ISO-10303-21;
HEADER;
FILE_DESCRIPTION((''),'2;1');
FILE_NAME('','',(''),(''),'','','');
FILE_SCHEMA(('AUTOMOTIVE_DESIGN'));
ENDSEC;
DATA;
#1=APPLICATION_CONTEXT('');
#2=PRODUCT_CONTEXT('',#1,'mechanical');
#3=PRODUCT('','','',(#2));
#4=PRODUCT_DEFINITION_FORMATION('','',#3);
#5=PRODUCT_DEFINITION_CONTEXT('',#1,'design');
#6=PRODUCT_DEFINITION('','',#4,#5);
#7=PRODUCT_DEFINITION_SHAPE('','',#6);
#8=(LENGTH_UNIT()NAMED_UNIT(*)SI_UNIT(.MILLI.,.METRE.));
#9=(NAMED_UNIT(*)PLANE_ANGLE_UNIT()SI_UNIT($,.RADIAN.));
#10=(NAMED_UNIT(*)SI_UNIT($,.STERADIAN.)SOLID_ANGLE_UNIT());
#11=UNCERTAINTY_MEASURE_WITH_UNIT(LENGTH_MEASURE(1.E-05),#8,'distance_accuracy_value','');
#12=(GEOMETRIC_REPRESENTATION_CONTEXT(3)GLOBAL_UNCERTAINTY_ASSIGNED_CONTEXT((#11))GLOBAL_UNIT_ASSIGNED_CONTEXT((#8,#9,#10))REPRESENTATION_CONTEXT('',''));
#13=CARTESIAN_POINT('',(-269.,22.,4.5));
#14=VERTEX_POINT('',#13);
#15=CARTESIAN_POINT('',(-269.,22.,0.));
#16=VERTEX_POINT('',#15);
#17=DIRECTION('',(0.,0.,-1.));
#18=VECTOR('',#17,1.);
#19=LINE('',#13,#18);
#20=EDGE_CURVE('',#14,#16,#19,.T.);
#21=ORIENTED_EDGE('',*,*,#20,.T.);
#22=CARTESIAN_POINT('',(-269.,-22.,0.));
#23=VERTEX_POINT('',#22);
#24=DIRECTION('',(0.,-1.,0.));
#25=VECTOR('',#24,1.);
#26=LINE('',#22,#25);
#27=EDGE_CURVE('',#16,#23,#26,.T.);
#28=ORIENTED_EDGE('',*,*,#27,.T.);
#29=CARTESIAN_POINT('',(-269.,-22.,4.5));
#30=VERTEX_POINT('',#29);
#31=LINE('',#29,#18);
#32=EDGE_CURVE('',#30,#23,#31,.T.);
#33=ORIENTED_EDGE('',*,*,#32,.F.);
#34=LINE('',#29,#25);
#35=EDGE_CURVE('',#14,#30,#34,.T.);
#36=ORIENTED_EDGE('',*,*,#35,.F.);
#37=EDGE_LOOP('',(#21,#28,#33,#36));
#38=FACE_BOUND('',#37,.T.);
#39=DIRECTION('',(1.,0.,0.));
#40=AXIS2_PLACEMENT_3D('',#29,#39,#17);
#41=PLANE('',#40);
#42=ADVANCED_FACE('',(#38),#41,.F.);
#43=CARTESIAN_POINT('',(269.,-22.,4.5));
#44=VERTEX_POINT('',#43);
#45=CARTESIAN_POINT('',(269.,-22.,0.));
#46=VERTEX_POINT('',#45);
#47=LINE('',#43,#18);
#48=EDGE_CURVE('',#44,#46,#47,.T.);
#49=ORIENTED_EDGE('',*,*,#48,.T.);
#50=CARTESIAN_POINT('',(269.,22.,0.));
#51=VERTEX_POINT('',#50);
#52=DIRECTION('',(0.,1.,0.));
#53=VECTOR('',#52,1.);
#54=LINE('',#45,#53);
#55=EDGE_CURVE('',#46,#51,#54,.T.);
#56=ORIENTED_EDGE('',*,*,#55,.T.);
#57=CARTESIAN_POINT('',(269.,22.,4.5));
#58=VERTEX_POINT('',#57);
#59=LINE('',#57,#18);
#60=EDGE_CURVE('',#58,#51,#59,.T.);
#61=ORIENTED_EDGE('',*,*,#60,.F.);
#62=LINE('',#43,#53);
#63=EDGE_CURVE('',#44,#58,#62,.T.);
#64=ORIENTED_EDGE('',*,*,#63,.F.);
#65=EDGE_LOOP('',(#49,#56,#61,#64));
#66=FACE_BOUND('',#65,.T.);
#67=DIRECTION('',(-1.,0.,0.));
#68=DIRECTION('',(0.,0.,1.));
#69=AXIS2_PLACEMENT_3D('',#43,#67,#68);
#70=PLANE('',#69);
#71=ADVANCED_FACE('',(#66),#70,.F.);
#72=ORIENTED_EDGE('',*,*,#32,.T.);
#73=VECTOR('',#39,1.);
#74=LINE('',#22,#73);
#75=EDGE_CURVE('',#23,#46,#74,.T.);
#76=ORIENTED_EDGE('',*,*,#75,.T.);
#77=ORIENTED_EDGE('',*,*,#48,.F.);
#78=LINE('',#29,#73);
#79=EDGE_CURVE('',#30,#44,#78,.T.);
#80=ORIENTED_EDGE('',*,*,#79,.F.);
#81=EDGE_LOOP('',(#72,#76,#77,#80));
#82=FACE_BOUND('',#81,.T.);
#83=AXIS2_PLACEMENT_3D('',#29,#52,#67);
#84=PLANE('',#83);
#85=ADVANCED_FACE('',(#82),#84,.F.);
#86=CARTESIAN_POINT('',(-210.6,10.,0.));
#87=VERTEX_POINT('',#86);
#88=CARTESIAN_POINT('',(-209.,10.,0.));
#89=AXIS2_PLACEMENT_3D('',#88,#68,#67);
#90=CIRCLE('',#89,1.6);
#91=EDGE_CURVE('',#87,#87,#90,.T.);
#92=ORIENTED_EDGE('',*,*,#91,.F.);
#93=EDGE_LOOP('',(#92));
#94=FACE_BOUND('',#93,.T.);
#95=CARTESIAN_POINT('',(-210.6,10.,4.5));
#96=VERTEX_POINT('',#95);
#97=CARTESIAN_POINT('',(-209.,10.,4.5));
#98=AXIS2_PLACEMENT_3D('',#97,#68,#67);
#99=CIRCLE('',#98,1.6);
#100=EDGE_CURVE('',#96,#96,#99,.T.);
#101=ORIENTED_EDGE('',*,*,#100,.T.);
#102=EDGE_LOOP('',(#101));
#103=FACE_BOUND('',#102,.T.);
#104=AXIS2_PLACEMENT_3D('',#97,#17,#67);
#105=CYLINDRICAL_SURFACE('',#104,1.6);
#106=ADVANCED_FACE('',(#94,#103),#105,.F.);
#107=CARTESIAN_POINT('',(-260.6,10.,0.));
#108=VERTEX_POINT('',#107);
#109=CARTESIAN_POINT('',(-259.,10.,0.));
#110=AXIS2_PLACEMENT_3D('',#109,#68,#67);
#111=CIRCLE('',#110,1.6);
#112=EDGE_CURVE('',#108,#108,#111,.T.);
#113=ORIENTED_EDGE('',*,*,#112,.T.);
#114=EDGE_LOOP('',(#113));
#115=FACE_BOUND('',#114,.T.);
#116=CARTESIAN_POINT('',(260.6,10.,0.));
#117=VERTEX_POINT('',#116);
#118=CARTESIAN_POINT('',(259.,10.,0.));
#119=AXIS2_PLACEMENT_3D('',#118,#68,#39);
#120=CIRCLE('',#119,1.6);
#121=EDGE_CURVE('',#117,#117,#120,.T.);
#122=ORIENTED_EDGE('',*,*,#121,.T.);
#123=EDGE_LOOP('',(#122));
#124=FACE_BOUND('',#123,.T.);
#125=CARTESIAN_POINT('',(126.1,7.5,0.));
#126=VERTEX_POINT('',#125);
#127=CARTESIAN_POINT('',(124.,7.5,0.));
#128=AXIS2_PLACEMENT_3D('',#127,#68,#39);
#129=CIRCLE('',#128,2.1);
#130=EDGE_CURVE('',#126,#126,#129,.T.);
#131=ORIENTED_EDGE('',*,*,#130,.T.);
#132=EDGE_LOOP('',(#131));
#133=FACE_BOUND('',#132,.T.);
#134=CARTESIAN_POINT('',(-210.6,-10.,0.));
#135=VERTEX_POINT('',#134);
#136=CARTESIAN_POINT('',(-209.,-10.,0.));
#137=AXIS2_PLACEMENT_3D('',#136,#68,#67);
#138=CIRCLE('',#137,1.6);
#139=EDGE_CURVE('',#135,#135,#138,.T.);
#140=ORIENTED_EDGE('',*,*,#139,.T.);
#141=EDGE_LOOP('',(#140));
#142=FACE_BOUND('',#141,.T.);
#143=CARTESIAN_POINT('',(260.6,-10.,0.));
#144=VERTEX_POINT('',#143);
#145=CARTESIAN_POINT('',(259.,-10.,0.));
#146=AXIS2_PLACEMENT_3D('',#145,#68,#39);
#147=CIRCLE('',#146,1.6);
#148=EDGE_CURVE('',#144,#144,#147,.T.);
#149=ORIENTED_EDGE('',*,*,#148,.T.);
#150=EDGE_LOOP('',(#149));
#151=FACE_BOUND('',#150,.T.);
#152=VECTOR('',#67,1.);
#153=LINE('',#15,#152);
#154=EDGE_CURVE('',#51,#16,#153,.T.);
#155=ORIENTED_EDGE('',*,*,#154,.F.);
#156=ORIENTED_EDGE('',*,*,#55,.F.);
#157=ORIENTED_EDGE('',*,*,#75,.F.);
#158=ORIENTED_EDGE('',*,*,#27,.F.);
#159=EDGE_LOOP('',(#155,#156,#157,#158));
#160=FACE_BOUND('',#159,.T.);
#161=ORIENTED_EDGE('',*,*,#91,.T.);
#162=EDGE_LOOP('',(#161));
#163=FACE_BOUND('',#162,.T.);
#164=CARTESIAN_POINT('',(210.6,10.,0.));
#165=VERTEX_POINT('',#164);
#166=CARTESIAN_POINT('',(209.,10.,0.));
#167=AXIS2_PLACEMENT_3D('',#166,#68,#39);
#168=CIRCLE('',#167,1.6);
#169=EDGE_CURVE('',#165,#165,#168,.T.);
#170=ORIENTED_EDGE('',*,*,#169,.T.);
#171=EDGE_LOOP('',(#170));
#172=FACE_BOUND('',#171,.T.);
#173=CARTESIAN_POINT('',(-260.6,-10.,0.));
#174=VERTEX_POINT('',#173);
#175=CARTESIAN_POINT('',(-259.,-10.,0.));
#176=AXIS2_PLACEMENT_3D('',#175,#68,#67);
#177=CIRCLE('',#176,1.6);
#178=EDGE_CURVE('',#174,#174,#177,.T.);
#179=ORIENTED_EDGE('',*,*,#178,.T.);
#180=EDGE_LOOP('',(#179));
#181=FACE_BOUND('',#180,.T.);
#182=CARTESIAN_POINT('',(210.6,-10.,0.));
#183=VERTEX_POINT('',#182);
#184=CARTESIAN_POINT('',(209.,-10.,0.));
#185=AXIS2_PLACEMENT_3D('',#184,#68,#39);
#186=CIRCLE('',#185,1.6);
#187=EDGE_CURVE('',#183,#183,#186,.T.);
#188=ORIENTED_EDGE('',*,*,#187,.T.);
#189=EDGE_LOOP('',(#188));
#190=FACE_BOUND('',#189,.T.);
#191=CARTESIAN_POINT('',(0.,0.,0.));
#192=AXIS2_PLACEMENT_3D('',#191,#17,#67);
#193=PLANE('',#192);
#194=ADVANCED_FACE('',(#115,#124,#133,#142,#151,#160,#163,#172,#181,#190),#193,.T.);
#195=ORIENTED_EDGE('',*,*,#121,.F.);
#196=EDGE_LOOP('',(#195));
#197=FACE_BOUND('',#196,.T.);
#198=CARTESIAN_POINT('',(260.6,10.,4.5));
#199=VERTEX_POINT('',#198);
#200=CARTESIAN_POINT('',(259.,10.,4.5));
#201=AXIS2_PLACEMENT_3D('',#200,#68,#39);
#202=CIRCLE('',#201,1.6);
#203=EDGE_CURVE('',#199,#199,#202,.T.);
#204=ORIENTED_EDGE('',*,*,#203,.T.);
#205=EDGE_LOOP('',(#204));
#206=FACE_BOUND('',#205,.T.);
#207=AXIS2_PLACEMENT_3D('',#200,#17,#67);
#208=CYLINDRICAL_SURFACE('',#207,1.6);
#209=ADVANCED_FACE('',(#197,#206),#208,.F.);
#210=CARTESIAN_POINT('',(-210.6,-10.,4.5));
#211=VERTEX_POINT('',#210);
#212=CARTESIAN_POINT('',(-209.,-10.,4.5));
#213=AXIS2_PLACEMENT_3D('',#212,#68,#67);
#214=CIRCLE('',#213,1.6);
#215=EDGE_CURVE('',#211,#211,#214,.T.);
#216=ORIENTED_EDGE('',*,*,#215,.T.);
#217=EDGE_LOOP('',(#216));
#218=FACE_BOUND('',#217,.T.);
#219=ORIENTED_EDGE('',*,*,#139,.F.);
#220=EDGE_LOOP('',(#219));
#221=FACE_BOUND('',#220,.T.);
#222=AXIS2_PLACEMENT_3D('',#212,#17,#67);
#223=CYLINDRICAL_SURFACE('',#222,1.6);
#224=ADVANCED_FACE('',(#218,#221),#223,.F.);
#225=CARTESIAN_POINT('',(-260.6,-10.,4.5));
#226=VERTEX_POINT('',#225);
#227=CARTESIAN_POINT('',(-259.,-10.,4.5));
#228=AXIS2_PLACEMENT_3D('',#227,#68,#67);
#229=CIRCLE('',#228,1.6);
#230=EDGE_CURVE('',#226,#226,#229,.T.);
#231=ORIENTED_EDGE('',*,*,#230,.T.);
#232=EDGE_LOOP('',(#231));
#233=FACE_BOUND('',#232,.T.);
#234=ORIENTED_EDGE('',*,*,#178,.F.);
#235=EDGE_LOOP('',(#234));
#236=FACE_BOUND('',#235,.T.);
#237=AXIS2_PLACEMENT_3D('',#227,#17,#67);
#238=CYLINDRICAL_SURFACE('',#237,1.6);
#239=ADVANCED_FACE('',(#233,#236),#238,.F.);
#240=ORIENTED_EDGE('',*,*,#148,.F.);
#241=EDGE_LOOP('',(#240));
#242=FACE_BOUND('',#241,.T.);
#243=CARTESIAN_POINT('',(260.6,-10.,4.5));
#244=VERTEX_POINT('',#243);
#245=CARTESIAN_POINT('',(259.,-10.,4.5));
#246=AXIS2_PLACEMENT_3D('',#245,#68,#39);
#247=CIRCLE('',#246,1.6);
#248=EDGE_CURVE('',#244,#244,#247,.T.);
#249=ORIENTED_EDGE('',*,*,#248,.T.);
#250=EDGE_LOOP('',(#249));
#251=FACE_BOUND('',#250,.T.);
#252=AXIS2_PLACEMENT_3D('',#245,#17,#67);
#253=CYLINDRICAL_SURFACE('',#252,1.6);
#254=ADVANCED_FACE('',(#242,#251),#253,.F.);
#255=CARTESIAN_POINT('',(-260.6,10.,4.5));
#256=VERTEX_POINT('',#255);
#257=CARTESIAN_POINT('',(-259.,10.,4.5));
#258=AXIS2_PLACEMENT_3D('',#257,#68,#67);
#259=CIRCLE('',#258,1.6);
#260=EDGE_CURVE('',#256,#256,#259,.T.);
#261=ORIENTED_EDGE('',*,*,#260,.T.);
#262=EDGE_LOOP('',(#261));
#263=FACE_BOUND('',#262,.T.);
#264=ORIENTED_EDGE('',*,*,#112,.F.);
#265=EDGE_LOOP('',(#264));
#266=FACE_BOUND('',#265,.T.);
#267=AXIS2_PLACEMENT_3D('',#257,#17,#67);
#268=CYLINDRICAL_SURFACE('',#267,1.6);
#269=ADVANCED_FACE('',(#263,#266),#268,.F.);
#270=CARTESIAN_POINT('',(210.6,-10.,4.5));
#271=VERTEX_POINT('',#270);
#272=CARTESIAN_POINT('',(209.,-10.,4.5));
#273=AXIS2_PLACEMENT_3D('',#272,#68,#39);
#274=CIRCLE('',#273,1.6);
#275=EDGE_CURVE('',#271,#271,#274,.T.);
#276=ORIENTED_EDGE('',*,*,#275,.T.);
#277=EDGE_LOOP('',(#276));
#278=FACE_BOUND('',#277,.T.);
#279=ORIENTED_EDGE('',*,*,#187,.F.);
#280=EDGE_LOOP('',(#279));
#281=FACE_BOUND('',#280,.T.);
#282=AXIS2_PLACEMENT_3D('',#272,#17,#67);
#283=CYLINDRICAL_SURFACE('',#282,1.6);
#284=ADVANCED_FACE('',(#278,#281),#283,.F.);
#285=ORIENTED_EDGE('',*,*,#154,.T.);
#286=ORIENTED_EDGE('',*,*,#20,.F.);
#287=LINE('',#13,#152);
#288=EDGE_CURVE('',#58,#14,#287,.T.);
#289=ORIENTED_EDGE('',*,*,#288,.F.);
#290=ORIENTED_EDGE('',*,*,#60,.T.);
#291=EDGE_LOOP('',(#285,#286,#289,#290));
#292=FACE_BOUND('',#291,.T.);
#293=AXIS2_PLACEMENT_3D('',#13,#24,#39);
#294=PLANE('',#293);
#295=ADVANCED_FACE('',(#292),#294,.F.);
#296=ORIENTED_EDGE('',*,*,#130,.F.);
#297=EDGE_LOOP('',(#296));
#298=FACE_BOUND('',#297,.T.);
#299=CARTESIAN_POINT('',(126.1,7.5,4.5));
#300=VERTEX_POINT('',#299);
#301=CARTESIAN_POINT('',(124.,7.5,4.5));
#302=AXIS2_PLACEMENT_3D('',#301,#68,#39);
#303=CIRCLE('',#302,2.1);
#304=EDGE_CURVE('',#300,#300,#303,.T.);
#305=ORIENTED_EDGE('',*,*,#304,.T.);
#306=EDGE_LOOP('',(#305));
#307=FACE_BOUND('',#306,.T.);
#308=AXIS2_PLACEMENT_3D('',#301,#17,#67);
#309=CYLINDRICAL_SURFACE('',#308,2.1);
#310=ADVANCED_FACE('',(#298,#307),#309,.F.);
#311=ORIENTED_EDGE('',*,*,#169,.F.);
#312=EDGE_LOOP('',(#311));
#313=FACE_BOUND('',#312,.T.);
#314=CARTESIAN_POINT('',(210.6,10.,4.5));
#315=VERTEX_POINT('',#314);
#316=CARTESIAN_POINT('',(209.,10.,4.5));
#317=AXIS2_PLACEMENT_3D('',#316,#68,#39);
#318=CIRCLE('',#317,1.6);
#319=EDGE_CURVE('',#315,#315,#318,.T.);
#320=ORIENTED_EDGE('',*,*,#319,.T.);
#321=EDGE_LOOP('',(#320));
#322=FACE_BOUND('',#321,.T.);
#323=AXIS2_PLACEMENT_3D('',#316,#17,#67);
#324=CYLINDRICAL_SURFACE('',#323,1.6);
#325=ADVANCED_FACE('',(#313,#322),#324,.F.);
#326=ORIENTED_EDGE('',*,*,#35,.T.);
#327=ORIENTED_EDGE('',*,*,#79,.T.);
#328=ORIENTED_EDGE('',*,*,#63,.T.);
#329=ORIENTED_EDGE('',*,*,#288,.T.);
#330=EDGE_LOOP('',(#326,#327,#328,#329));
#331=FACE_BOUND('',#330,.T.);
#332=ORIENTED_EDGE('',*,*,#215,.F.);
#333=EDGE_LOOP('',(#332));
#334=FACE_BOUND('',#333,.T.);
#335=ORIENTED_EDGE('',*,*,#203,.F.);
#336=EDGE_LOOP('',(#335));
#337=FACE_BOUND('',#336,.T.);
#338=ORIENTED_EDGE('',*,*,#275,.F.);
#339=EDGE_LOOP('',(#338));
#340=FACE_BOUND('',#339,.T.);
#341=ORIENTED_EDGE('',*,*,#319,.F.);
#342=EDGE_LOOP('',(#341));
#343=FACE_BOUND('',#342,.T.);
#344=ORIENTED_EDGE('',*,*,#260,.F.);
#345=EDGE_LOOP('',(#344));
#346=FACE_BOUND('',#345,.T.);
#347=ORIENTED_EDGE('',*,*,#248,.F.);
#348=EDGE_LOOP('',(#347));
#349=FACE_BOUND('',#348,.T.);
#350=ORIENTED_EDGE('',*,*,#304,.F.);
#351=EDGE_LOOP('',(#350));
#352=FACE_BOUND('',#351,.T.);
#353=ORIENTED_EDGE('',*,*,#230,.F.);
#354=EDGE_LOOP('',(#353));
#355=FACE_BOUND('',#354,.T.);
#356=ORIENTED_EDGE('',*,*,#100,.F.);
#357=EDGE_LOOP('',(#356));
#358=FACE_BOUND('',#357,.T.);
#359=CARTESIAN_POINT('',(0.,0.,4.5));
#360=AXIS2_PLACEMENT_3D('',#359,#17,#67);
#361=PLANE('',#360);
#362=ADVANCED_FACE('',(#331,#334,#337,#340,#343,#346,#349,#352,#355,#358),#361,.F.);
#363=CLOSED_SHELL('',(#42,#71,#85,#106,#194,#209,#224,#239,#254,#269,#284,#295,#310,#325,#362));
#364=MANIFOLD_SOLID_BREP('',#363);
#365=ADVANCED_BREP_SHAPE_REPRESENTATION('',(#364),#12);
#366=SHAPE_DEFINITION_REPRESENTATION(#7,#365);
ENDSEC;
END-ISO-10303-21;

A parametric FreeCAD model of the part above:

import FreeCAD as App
import Part
import Sketcher


def add_polygon(sketch, points):
    """Adds a closed chain of lines whose ends are joined by coincident constraints."""
    first, n = sketch.GeometryCount, len(points)
    for a, b in zip(points, points[1:] + points[:1]):
        sketch.addGeometry(Part.LineSegment(App.Vector(*a, 0), App.Vector(*b, 0)), False)
    for i in range(n):
        sketch.addConstraint(Sketcher.Constraint("Coincident", first + i, 2, first + (i + 1) % n, 1))

doc = App.newDocument("Part")
body = doc.addObject("PartDesign::Body", "Body")

# Sketch on XY plane
sketch1 = body.newObject("Sketcher::SketchObject", "Sketch")
sketch1.AttachmentSupport = (doc.getObject("XY_Plane"), [""])
sketch1.MapMode = "FlatFace"
add_polygon(sketch1, [(-269, 22), (-269, -22), (269, -22), (269, 22)])  # lines 0-3
sketch1.addGeometry(Part.Circle(App.Vector(-259, -10, 0), App.Vector(0, 0, 1), 1.6), False)  # 4
sketch1.addGeometry(Part.Circle(App.Vector(-209, -10, 0), App.Vector(0, 0, 1), 1.6), False)  # 5
sketch1.addGeometry(Part.Circle(App.Vector(209, -10, 0), App.Vector(0, 0, 1), 1.6), False)  # 6
sketch1.addGeometry(Part.Circle(App.Vector(259, -10, 0), App.Vector(0, 0, 1), 1.6), False)  # 7
sketch1.addGeometry(Part.Circle(App.Vector(-259, 10, 0), App.Vector(0, 0, 1), 1.6), False)  # 8
sketch1.addGeometry(Part.Circle(App.Vector(-209, 10, 0), App.Vector(0, 0, 1), 1.6), False)  # 9
sketch1.addGeometry(Part.Circle(App.Vector(124, 7.5, 0), App.Vector(0, 0, 1), 2.1), False)  # 10
sketch1.addGeometry(Part.Circle(App.Vector(209, 10, 0), App.Vector(0, 0, 1), 1.6), False)  # 11
sketch1.addGeometry(Part.Circle(App.Vector(259, 10, 0), App.Vector(0, 0, 1), 1.6), False)  # 12
sketch1.addConstraint(Sketcher.Constraint("Vertical", 0))
sketch1.addConstraint(Sketcher.Constraint("Horizontal", 1))
sketch1.addConstraint(Sketcher.Constraint("Vertical", 2))
sketch1.addConstraint(Sketcher.Constraint("Horizontal", 3))
sketch1.addConstraint(Sketcher.Constraint("Equal", 4, 5))
sketch1.addConstraint(Sketcher.Constraint("Equal", 5, 6))
sketch1.addConstraint(Sketcher.Constraint("Equal", 6, 7))
sketch1.addConstraint(Sketcher.Constraint("Equal", 7, 8))
sketch1.addConstraint(Sketcher.Constraint("Equal", 8, 9))
sketch1.addConstraint(Sketcher.Constraint("Equal", 9, 11))
sketch1.addConstraint(Sketcher.Constraint("Equal", 11, 12))
sketch1.addConstraint(Sketcher.Constraint("Symmetric", 7, 3, 8, 3, -1, 1))
sketch1.addConstraint(Sketcher.Constraint("Symmetric", 6, 3, 9, 3, -1, 1))
sketch1.addConstraint(Sketcher.Constraint("Symmetric", 5, 3, 11, 3, -1, 1))
sketch1.addConstraint(Sketcher.Constraint("Symmetric", 4, 3, 12, 3, -1, 1))
sketch1.addConstraint(Sketcher.Constraint("Symmetric", 0, 2, 2, 2, -1, 1))
sketch1.addConstraint(Sketcher.Constraint("Symmetric", 5, 3, 6, 3, -2))
sketch1.addConstraint(Sketcher.Constraint("Symmetric", 4, 3, 7, 3, -2))
sketch1.addConstraint(Sketcher.Constraint("Horizontal", 4, 3, 5, 3))
sketch1.addConstraint(Sketcher.Constraint("Diameter", 4, 3.2))
sketch1.addConstraint(Sketcher.Constraint("Diameter", 10, 4.2))
sketch1.addConstraint(Sketcher.Constraint("DistanceX", 1, 1, 1, 2, 538.0))
sketch1.addConstraint(Sketcher.Constraint("DistanceY", 0, 2, 0, 1, 44.0))
sketch1.addConstraint(Sketcher.Constraint("DistanceX", 4, 3, -1, 1, 259.0))
sketch1.addConstraint(Sketcher.Constraint("DistanceY", 4, 3, -1, 1, 10.0))
sketch1.addConstraint(Sketcher.Constraint("DistanceX", 5, 3, -1, 1, 209.0))
sketch1.addConstraint(Sketcher.Constraint("DistanceX", -1, 1, 10, 3, 124.0))
sketch1.addConstraint(Sketcher.Constraint("DistanceY", -1, 1, 10, 3, 7.5))
pad1 = body.newObject("PartDesign::Pad", "Pad")
pad1.Profile = sketch1
pad1.Length = 4.5

doc.recompute()
